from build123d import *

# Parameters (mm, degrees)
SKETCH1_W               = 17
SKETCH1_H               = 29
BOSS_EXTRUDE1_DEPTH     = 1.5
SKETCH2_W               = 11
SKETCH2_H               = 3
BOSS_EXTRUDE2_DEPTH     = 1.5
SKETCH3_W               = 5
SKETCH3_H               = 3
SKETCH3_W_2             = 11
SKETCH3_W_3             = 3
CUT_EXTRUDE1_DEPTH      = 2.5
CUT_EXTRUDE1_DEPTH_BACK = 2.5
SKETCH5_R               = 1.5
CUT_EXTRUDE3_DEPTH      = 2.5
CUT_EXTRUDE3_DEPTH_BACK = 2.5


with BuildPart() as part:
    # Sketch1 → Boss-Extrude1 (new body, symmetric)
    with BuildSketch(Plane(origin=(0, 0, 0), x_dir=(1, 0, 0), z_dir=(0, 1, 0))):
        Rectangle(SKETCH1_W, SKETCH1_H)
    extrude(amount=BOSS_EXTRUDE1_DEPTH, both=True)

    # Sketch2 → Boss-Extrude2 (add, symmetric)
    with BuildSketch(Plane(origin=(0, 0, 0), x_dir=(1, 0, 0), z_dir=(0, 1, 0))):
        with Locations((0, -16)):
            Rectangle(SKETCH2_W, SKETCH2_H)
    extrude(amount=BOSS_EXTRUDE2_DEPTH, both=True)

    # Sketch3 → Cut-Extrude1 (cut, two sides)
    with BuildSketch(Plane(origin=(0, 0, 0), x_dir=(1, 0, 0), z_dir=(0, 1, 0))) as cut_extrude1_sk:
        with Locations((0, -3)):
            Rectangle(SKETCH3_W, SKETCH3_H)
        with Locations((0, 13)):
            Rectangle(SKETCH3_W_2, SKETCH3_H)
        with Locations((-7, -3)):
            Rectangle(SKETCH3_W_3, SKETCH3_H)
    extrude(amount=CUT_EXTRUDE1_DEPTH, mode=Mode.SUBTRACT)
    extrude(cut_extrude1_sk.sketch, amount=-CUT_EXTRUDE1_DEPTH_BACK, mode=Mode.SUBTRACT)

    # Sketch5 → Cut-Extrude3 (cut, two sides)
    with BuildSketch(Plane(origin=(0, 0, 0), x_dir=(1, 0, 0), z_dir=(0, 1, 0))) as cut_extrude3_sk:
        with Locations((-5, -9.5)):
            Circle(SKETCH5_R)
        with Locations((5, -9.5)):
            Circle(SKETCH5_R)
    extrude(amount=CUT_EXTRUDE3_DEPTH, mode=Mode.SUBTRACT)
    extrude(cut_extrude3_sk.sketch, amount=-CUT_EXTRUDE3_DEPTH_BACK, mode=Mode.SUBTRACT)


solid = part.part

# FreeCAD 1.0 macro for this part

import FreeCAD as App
import Part
import Sketcher

V = App.Vector


def add_polygon(sketch, points):
    """Adds a closed chain of lines whose ends are joined by coincident constraints."""
    first, n = sketch.GeometryCount, len(points)
    for a, b in zip(points, points[1:] + points[:1]):
        sketch.addGeometry(Part.LineSegment(App.Vector(*a, 0), App.Vector(*b, 0)), False)
    for i in range(n):
        sketch.addConstraint(Sketcher.Constraint("Coincident", first + i, 2, first + (i + 1) % n, 1))

doc = App.newDocument("Part")
body = doc.addObject("PartDesign::Body", "Body")

sketch1 = doc.addObject("Sketcher::SketchObject", "Sketch")
body.addObject(sketch1)
sketch1.AttachmentSupport = (doc.XZ_Plane, [""])
sketch1.MapMode = "FlatFace"
add_polygon(sketch1, [(-8.5, -14.5), (-8.5, 14.5), (8.5, 14.5), (8.5, -14.5)])
sketch1.addConstraint([
    Sketcher.Constraint("Vertical", 0),
    Sketcher.Constraint("Horizontal", 1),
    Sketcher.Constraint("Vertical", 2),
    Sketcher.Constraint("Horizontal", 3),
    Sketcher.Constraint("Symmetric", 0, 2, 2, 2, -1, 1),
    Sketcher.Constraint("DistanceX", 1, 1, 1, 2, 17.0),
    Sketcher.Constraint("DistanceY", 0, 1, 0, 2, 29.0),
])
pad1 = doc.addObject("PartDesign::Pad", "Pad")
body.addObject(pad1)
pad1.Profile = sketch1
pad1.Length = 3
pad1.Midplane = True

sketch2 = doc.addObject("Sketcher::SketchObject", "Sketch001")
body.addObject(sketch2)
sketch2.AttachmentSupport = (doc.XZ_Plane, [""])
sketch2.MapMode = "FlatFace"
add_polygon(sketch2, [(-5.5, 14.5), (-5.5, 17.5), (5.5, 17.5), (5.5, 14.5)])
sketch2.addConstraint([
    Sketcher.Constraint("Vertical", 0),
    Sketcher.Constraint("Horizontal", 1),
    Sketcher.Constraint("Vertical", 2),
    Sketcher.Constraint("Horizontal", 3),
    Sketcher.Constraint("DistanceX", 1, 1, 1, 2, 11.0),
    Sketcher.Constraint("DistanceY", 0, 1, 0, 2, 3.0),
    Sketcher.Constraint("DistanceX", 0, 2, -1, 1, 5.5),
    Sketcher.Constraint("DistanceY", -1, 1, 0, 2, 17.5),
])
pad2 = doc.addObject("PartDesign::Pad", "Pad001")
body.addObject(pad2)
pad2.Profile = sketch2
pad2.Length = 3
pad2.Midplane = True

sketch3 = doc.addObject("Sketcher::SketchObject", "Sketch002")
body.addObject(sketch3)
sketch3.AttachmentSupport = (doc.XZ_Plane, [""])
sketch3.MapMode = "FlatFace"
add_polygon(sketch3, [(-2.5, 1.5), (-2.5, 4.5), (2.5, 4.5), (2.5, 1.5)])
add_polygon(sketch3, [(-5.5, -14.5), (-5.5, -11.5), (5.5, -11.5), (5.5, -14.5)])
add_polygon(sketch3, [(-8.5, 1.5), (-8.5, 4.5), (-5.5, 4.5), (-5.5, 1.5)])
sketch3.addConstraint([
    Sketcher.Constraint("Vertical", 0),
    Sketcher.Constraint("Horizontal", 1),
    Sketcher.Constraint("Vertical", 2),
    Sketcher.Constraint("Horizontal", 3),
    Sketcher.Constraint("Vertical", 4),
    Sketcher.Constraint("Horizontal", 5),
    Sketcher.Constraint("Vertical", 6),
    Sketcher.Constraint("Horizontal", 7),
    Sketcher.Constraint("Vertical", 8),
    Sketcher.Constraint("Horizontal", 9),
    Sketcher.Constraint("Vertical", 10),
    Sketcher.Constraint("Horizontal", 11),
    Sketcher.Constraint("Horizontal", 1, 2, 8, 2),
    Sketcher.Constraint("Horizontal", 3, 2, 10, 2),
    Sketcher.Constraint("Vertical", 7, 2, 9, 2),
    Sketcher.Constraint("Equal", 11, 0),
    Sketcher.Constraint("Equal", 2, 4),
    Sketcher.Constraint("DistanceX", 1, 1, 1, 2, 5.0),
    Sketcher.Constraint("DistanceX", 5, 1, 5, 2, 11.0),
    Sketcher.Constraint("DistanceX", 9, 1, 9, 2, 3.0),
    Sketcher.Constraint("DistanceX", 4, 2, 3, 2, 3.0),
    Sketcher.Constraint("DistanceY", 4, 2, 3, 2, 13.0),
    Sketcher.Constraint("DistanceX", 0, 2, -1, 1, 2.5),
    Sketcher.Constraint("DistanceY", -1, 1, 0, 2, 4.5),
])
pocket1 = doc.addObject("PartDesign::Pocket", "Pocket")
body.addObject(pocket1)
pocket1.Profile = sketch3
pocket1.Type = "ThroughAll"
pocket1.Midplane = True

sketch4 = doc.addObject("Sketcher::SketchObject", "Sketch003")
body.addObject(sketch4)
sketch4.AttachmentSupport = (doc.XZ_Plane, [""])
sketch4.MapMode = "FlatFace"
sketch4.addGeometry([
    Part.Circle(V(-5, 9.5, 0), V(0, 0, 1), 1.5),
    Part.Circle(V(5, 9.5, 0), V(0, 0, 1), 1.5),
], False)
sketch4.addConstraint([
    Sketcher.Constraint("Equal", 0, 1),
    Sketcher.Constraint("Symmetric", 0, 3, 1, 3, -2),
    Sketcher.Constraint("Diameter", 0, 3.0),
    Sketcher.Constraint("DistanceX", 0, 3, -1, 1, 5.0),
    Sketcher.Constraint("DistanceY", -1, 1, 0, 3, 9.5),
])
pocket2 = doc.addObject("PartDesign::Pocket", "Pocket001")
body.addObject(pocket2)
pocket2.Profile = sketch4
pocket2.Type = "ThroughAll"
pocket2.Midplane = True

doc.recompute()
